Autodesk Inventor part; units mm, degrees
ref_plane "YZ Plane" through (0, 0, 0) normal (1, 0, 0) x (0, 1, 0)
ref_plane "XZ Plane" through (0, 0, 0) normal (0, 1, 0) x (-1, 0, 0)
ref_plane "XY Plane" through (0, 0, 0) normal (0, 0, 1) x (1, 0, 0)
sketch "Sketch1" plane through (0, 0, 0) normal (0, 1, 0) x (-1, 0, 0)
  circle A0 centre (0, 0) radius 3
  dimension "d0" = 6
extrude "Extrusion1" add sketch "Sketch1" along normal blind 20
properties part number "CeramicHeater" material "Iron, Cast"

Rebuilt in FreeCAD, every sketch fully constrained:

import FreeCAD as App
import Part
import Sketcher
Q = App.Units.Quantity

doc = App.newDocument("Part")
body = doc.addObject("PartDesign::Body", "Body")

# Sketch on XZ plane
sketch1 = doc.addObject("Sketcher::SketchObject", "Sketch")
body.addObject(sketch1)
sketch1.AttachmentSupport = (doc.XZ_Plane, [""])
sketch1.MapMode = "FlatFace"
sketch1.addGeometry(Part.Circle(App.Vector(0, 0, 0), App.Vector(0, 0, 1), 3), False)
sketch1.addConstraint([
    Sketcher.Constraint("Coincident", 0, 3, -1, 1),
    Sketcher.Constraint("Diameter", 0, Q("6 mm")),
])
pad1 = doc.addObject("PartDesign::Pad", "Pad")
body.addObject(pad1)
pad1.Profile = sketch1
pad1.Length = 20
pad1.Reversed = True

doc.recompute()
